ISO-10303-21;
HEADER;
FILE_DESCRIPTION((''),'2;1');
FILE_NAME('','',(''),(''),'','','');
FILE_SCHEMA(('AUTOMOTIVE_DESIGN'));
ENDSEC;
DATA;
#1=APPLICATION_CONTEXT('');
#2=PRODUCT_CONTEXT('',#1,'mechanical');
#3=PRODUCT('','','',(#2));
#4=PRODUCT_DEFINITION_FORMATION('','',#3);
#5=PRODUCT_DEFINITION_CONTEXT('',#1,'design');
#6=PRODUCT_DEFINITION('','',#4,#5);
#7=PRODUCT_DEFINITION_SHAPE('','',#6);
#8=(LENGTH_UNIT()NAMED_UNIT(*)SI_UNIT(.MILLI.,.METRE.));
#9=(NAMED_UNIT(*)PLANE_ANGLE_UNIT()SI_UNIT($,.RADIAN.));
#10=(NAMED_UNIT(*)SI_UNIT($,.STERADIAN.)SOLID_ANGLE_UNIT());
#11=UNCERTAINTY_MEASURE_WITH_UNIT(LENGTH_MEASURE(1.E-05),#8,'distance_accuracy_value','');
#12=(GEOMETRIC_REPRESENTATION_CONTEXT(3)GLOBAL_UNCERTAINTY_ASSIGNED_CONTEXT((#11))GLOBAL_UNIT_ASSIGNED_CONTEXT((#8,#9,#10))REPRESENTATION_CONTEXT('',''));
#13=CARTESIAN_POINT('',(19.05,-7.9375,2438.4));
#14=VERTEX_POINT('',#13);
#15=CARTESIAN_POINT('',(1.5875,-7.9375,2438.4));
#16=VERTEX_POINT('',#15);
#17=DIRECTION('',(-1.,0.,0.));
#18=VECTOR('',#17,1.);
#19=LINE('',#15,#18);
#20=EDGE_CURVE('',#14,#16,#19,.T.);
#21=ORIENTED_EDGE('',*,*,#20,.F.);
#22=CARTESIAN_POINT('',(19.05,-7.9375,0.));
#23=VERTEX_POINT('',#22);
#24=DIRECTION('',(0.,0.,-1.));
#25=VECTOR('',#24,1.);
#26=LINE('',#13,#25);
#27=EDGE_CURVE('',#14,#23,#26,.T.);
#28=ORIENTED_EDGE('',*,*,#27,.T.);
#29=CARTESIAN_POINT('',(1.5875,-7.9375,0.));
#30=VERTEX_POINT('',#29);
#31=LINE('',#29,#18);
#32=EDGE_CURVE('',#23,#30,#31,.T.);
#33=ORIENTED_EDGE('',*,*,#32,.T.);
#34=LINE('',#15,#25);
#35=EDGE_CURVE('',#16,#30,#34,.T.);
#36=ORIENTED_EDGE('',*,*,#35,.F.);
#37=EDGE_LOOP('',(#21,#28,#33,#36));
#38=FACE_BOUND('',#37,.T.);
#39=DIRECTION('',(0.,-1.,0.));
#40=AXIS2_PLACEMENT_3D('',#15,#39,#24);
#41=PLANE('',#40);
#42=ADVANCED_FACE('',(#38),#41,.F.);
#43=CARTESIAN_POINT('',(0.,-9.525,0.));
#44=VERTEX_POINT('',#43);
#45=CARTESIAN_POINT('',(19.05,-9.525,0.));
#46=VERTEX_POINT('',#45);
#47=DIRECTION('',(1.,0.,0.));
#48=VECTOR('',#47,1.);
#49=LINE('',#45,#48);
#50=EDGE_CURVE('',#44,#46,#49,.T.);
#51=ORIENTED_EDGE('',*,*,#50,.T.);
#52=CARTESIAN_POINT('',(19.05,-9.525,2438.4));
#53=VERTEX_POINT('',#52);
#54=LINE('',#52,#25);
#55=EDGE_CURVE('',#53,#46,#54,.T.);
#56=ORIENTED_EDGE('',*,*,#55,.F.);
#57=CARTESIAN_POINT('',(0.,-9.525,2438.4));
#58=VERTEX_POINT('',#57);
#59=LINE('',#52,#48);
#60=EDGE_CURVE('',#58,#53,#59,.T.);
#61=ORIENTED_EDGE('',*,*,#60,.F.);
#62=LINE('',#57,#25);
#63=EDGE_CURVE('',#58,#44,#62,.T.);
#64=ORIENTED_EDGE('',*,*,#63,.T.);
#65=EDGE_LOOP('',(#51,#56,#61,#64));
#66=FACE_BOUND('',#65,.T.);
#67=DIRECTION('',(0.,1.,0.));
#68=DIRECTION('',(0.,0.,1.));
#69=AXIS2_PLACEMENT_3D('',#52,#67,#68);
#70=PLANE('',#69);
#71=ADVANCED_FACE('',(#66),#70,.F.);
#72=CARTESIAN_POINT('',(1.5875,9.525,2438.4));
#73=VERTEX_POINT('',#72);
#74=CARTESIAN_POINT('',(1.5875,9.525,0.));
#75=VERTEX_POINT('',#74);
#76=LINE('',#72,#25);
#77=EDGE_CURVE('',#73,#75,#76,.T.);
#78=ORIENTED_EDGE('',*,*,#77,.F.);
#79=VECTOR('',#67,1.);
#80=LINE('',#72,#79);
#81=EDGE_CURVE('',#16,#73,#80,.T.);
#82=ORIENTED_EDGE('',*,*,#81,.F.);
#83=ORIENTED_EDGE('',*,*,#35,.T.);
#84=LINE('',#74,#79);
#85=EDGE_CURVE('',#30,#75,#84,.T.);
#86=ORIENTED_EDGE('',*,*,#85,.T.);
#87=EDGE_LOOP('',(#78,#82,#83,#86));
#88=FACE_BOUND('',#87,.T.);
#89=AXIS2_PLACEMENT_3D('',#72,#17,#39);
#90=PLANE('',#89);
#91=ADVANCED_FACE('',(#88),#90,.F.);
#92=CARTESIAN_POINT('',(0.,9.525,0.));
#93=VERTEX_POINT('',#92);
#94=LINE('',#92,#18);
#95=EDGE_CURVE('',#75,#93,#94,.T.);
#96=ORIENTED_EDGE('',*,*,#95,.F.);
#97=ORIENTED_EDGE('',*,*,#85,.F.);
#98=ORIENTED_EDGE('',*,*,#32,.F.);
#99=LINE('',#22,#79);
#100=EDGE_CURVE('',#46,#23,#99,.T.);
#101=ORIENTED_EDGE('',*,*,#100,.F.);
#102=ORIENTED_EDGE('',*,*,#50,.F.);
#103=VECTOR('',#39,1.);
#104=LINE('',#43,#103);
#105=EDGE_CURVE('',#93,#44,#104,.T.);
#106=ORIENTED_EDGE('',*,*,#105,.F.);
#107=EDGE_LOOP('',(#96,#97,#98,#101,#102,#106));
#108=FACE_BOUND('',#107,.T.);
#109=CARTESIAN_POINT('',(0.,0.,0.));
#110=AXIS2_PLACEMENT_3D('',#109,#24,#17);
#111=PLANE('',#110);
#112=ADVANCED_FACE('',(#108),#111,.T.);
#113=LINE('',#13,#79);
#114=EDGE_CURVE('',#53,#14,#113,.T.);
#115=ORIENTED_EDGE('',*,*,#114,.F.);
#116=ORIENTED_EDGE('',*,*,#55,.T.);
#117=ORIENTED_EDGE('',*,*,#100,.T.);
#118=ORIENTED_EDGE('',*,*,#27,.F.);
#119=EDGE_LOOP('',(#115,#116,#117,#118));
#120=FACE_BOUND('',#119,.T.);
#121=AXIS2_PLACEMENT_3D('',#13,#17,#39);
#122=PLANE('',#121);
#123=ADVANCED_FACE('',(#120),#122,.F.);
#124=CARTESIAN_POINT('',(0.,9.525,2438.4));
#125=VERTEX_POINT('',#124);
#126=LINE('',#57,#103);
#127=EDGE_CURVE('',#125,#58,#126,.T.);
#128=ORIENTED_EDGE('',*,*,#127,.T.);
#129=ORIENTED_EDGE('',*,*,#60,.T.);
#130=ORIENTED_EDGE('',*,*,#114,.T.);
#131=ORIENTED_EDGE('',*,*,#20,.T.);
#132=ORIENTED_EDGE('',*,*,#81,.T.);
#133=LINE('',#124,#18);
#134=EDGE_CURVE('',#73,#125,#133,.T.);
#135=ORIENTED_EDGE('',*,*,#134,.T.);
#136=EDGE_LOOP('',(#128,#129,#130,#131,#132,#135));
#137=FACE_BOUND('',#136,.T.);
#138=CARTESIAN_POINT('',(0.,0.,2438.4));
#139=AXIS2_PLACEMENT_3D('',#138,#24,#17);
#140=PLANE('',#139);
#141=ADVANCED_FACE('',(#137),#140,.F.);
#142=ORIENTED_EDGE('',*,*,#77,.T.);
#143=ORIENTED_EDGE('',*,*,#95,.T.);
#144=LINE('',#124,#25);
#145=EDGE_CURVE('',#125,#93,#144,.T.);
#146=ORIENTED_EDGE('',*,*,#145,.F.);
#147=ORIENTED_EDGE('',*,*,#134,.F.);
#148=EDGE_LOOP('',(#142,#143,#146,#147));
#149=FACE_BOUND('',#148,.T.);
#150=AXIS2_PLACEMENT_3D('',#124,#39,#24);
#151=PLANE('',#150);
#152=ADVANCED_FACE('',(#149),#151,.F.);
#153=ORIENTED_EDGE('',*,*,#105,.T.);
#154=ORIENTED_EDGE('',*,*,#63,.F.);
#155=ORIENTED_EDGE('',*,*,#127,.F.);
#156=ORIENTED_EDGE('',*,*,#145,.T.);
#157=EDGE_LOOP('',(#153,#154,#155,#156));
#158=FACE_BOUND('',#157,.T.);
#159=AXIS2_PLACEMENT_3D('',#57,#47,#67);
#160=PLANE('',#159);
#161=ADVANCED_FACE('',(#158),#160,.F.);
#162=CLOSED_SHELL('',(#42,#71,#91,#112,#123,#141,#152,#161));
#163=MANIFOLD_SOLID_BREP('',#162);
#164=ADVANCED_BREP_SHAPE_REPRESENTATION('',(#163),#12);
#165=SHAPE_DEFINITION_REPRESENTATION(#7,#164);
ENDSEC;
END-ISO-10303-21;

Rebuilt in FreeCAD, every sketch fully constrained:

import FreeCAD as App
import Part
import Sketcher
Q = App.Units.Quantity


def add_polygon(sketch, points):
    """Adds a closed chain of lines whose ends are joined by coincident constraints."""
    first, n = sketch.GeometryCount, len(points)
    for a, b in zip(points, points[1:] + points[:1]):
        sketch.addGeometry(Part.LineSegment(App.Vector(*a, 0), App.Vector(*b, 0)), False)
    for i in range(n):
        sketch.addConstraint(Sketcher.Constraint("Coincident", first + i, 2, first + (i + 1) % n, 1))

doc = App.newDocument("Part")
body = doc.addObject("PartDesign::Body", "Body")

sketch1 = doc.addObject("Sketcher::SketchObject", "Sketch")
body.addObject(sketch1)
sketch1.AttachmentSupport = (doc.XY_Plane, [""])
sketch1.MapMode = "FlatFace"
add_polygon(sketch1, [(0, 9.5), (0, -9.5), (19.1, -9.5), (19.1, -7.9), (1.6, -7.9), (1.6, 9.5)])
sketch1.addConstraint(Sketcher.Constraint("Vertical", 0))
sketch1.addConstraint(Sketcher.Constraint("Horizontal", 1))
sketch1.addConstraint(Sketcher.Constraint("Vertical", 2))
sketch1.addConstraint(Sketcher.Constraint("Horizontal", 3))
sketch1.addConstraint(Sketcher.Constraint("Vertical", 4))
sketch1.addConstraint(Sketcher.Constraint("Horizontal", 5))
sketch1.addConstraint(Sketcher.Constraint("Symmetric", 0, 2, 5, 2, -1, 1))
sketch1.addConstraint(Sketcher.Constraint("Equal", 1, 0))
sketch1.addConstraint(Sketcher.Constraint("Equal", 5, 2))
sketch1.addConstraint(Sketcher.Constraint("DistanceX", 1, 1, 1, 2, Q("0.75 in")))
sketch1.addConstraint(Sketcher.Constraint("DistanceX", 3, 2, 3, 1, Q("0.6875 in")))
pad1 = doc.addObject("PartDesign::Pad", "Pad")
body.addObject(pad1)
pad1.Profile = sketch1
pad1.Length = Q("96 in")

doc.recompute()
